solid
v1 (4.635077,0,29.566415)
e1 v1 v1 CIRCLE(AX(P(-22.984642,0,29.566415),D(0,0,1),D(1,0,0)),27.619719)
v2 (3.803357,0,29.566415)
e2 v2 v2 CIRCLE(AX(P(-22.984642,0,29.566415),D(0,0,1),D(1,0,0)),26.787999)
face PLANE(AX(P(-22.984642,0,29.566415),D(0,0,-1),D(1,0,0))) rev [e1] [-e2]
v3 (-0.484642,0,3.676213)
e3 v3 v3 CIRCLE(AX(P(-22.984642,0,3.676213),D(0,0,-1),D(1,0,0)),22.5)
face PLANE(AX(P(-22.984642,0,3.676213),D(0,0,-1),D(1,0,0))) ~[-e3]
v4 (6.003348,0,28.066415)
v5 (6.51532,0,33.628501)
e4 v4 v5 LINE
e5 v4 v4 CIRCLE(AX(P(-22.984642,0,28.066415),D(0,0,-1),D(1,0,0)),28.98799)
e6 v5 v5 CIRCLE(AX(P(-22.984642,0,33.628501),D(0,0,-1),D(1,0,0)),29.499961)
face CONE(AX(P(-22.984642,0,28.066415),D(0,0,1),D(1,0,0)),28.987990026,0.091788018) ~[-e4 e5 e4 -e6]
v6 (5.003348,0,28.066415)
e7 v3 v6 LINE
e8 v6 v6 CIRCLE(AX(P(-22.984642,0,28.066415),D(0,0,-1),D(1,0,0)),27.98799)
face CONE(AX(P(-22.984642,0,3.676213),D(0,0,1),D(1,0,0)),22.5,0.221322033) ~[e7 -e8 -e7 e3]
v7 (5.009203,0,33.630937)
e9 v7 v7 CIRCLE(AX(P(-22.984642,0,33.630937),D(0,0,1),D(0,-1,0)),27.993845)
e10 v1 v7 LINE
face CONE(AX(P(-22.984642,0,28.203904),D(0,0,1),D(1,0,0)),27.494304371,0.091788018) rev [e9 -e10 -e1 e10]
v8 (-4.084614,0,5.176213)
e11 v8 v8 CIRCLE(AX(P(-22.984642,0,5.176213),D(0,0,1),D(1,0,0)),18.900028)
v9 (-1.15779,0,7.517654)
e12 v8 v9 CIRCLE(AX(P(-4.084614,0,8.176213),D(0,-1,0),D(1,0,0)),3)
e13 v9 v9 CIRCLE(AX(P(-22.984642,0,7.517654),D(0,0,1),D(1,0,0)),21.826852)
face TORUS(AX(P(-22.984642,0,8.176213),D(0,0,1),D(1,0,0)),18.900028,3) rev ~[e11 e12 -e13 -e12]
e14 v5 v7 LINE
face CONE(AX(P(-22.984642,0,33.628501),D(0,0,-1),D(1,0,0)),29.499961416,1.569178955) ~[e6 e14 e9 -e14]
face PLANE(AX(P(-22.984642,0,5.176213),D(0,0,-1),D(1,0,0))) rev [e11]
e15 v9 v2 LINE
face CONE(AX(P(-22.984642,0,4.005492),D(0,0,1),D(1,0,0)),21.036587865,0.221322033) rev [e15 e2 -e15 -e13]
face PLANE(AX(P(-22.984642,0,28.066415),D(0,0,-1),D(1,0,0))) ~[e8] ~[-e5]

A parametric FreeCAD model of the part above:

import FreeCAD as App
import Part
import Sketcher
Q = App.Units.Quantity


def edges_at(feature, points):
    """Names of the edges that pass closest to the given points."""
    edges = feature.Shape.Edges
    near = lambda p: min(range(len(edges)), key=lambda i: edges[i].distToShape(Part.Vertex(*p))[0])
    return sorted({f"Edge{near(p) + 1}" for p in points})


def faces_at(feature, points):
    """Names of the faces that lie closest to the given points."""
    faces = feature.Shape.Faces
    near = lambda p: min(range(len(faces)), key=lambda i: faces[i].distToShape(Part.Vertex(*p))[0])
    return sorted({f"Face{near(p) + 1}" for p in points})

doc = App.newDocument("Part")
params = doc.addObject("Spreadsheet::Sheet", "Params")
for row, (alias, value) in enumerate([
    ("sketch1_width", "1 mm"),
    ("sketch1_height", "30 mm"),
    ("sketch1_length", "25 mm"),
    ("sketch1_width2", "22.5 mm"),
    ("sketch1_length2", "29.5 mm"),
    ("revolution_angle", "360 deg"),
    ("thickness_wall", "1.5 mm"),
    ("fillet_radius", "3 mm"),
], start=1):
    params.set(f"A{row}", alias)
    params.set(f"B{row}", "=" + value)
    params.setAlias(f"B{row}", alias)

body = doc.addObject("PartDesign::Body", "Body")

sketch1 = body.newObject("Sketcher::SketchObject", "Sketch")
sketch1.AttachmentSupport = (doc.getObject("XZ_Plane"), [""])
sketch1.MapMode = "FlatFace"
sketch1.addGeometry([
    Part.LineSegment(App.Vector(-23, 33.7, 0), App.Vector(-23, 3.7, 0)),
    Part.LineSegment(App.Vector(-23, 3.7, 0), App.Vector(-0.5, 3.7, 0)),
    Part.LineSegment(App.Vector(-0.5, 3.7, 0), App.Vector(5, 28.1, 0)),
    Part.LineSegment(App.Vector(5, 28.1, 0), App.Vector(6, 28.1, 0)),
    Part.LineSegment(App.Vector(6, 28.1, 0), App.Vector(6.5, 33.6, 0)),
    Part.LineSegment(App.Vector(6.5, 33.6, 0), App.Vector(-23, 33.7, 0)),
], False)
sketch1.addGeometry(Part.LineSegment(App.Vector(-23, 33.7, 0), App.Vector(-23, 3.7, 0)), True)
sketch1.addConstraint([
    Sketcher.Constraint("Coincident", 0, 2, 1, 1),
    Sketcher.Constraint("Coincident", 1, 2, 2, 1),
    Sketcher.Constraint("Coincident", 2, 2, 3, 1),
    Sketcher.Constraint("Coincident", 3, 2, 4, 1),
    Sketcher.Constraint("Coincident", 4, 2, 5, 1),
    Sketcher.Constraint("Coincident", 5, 2, 0, 1),
    Sketcher.Constraint("Vertical", 0),
    Sketcher.Constraint("Horizontal", 1),
    Sketcher.Constraint("Horizontal", 3),
    Sketcher.Constraint("Vertical", 6),
    Sketcher.Constraint("Coincident", 6, 1, 5, 2),
    Sketcher.Constraint("Horizontal", 1, 2, 6, 2),
    Sketcher.Constraint("DistanceX", 3, 1, 3, 2, Q("1 mm")),
    Sketcher.Constraint("DistanceY", 0, 2, 0, 1, Q("30 mm")),
    Sketcher.Constraint("Distance", 2, Q("25 mm")),
    Sketcher.Constraint("DistanceX", 1, 1, 1, 2, Q("22.5 mm")),
    Sketcher.Constraint("Distance", 5, Q("29.5 mm")),
    Sketcher.Constraint("Distance", 4, Q("5.585598 mm")),
    Sketcher.Constraint("DistanceY", -1, 1, 4, 2, Q("33.628501 mm")),
    Sketcher.Constraint("DistanceX", 0, 2, -1, 1, Q("22.984642 mm")),
    Sketcher.Constraint("DistanceX", -1, 1, 2, 2, Q("5.003348 mm")),
])
sketch1.setExpression("Constraints[12]", "Params.sketch1_width")
sketch1.setExpression("Constraints[13]", "Params.sketch1_height")
sketch1.setExpression("Constraints[14]", "Params.sketch1_length")
sketch1.setExpression("Constraints[15]", "Params.sketch1_width2")
sketch1.setExpression("Constraints[16]", "Params.sketch1_length2")
revolution = body.newObject("PartDesign::Revolution", "Revolution")
revolution.Profile = sketch1
revolution.ReferenceAxis = (sketch1, ["Axis0"])
revolution.setExpression("Angle", "Params.revolution_angle")
doc.recompute()

thickness = body.newObject("PartDesign::Thickness", "Thickness")
thickness.Base = (revolution, faces_at(revolution, [(-37.735, 0, 33.652)]))
thickness.setExpression("Value", "Params.thickness_wall")
thickness.Reversed = True
thickness.Join = "Intersection"
doc.recompute()

fillet = body.newObject("PartDesign::Fillet", "Fillet")
fillet.Base = (thickness, edges_at(thickness, [(-44.285, 0, 5.176)]))
fillet.setExpression("Radius", "Params.fillet_radius")

doc.recompute()
